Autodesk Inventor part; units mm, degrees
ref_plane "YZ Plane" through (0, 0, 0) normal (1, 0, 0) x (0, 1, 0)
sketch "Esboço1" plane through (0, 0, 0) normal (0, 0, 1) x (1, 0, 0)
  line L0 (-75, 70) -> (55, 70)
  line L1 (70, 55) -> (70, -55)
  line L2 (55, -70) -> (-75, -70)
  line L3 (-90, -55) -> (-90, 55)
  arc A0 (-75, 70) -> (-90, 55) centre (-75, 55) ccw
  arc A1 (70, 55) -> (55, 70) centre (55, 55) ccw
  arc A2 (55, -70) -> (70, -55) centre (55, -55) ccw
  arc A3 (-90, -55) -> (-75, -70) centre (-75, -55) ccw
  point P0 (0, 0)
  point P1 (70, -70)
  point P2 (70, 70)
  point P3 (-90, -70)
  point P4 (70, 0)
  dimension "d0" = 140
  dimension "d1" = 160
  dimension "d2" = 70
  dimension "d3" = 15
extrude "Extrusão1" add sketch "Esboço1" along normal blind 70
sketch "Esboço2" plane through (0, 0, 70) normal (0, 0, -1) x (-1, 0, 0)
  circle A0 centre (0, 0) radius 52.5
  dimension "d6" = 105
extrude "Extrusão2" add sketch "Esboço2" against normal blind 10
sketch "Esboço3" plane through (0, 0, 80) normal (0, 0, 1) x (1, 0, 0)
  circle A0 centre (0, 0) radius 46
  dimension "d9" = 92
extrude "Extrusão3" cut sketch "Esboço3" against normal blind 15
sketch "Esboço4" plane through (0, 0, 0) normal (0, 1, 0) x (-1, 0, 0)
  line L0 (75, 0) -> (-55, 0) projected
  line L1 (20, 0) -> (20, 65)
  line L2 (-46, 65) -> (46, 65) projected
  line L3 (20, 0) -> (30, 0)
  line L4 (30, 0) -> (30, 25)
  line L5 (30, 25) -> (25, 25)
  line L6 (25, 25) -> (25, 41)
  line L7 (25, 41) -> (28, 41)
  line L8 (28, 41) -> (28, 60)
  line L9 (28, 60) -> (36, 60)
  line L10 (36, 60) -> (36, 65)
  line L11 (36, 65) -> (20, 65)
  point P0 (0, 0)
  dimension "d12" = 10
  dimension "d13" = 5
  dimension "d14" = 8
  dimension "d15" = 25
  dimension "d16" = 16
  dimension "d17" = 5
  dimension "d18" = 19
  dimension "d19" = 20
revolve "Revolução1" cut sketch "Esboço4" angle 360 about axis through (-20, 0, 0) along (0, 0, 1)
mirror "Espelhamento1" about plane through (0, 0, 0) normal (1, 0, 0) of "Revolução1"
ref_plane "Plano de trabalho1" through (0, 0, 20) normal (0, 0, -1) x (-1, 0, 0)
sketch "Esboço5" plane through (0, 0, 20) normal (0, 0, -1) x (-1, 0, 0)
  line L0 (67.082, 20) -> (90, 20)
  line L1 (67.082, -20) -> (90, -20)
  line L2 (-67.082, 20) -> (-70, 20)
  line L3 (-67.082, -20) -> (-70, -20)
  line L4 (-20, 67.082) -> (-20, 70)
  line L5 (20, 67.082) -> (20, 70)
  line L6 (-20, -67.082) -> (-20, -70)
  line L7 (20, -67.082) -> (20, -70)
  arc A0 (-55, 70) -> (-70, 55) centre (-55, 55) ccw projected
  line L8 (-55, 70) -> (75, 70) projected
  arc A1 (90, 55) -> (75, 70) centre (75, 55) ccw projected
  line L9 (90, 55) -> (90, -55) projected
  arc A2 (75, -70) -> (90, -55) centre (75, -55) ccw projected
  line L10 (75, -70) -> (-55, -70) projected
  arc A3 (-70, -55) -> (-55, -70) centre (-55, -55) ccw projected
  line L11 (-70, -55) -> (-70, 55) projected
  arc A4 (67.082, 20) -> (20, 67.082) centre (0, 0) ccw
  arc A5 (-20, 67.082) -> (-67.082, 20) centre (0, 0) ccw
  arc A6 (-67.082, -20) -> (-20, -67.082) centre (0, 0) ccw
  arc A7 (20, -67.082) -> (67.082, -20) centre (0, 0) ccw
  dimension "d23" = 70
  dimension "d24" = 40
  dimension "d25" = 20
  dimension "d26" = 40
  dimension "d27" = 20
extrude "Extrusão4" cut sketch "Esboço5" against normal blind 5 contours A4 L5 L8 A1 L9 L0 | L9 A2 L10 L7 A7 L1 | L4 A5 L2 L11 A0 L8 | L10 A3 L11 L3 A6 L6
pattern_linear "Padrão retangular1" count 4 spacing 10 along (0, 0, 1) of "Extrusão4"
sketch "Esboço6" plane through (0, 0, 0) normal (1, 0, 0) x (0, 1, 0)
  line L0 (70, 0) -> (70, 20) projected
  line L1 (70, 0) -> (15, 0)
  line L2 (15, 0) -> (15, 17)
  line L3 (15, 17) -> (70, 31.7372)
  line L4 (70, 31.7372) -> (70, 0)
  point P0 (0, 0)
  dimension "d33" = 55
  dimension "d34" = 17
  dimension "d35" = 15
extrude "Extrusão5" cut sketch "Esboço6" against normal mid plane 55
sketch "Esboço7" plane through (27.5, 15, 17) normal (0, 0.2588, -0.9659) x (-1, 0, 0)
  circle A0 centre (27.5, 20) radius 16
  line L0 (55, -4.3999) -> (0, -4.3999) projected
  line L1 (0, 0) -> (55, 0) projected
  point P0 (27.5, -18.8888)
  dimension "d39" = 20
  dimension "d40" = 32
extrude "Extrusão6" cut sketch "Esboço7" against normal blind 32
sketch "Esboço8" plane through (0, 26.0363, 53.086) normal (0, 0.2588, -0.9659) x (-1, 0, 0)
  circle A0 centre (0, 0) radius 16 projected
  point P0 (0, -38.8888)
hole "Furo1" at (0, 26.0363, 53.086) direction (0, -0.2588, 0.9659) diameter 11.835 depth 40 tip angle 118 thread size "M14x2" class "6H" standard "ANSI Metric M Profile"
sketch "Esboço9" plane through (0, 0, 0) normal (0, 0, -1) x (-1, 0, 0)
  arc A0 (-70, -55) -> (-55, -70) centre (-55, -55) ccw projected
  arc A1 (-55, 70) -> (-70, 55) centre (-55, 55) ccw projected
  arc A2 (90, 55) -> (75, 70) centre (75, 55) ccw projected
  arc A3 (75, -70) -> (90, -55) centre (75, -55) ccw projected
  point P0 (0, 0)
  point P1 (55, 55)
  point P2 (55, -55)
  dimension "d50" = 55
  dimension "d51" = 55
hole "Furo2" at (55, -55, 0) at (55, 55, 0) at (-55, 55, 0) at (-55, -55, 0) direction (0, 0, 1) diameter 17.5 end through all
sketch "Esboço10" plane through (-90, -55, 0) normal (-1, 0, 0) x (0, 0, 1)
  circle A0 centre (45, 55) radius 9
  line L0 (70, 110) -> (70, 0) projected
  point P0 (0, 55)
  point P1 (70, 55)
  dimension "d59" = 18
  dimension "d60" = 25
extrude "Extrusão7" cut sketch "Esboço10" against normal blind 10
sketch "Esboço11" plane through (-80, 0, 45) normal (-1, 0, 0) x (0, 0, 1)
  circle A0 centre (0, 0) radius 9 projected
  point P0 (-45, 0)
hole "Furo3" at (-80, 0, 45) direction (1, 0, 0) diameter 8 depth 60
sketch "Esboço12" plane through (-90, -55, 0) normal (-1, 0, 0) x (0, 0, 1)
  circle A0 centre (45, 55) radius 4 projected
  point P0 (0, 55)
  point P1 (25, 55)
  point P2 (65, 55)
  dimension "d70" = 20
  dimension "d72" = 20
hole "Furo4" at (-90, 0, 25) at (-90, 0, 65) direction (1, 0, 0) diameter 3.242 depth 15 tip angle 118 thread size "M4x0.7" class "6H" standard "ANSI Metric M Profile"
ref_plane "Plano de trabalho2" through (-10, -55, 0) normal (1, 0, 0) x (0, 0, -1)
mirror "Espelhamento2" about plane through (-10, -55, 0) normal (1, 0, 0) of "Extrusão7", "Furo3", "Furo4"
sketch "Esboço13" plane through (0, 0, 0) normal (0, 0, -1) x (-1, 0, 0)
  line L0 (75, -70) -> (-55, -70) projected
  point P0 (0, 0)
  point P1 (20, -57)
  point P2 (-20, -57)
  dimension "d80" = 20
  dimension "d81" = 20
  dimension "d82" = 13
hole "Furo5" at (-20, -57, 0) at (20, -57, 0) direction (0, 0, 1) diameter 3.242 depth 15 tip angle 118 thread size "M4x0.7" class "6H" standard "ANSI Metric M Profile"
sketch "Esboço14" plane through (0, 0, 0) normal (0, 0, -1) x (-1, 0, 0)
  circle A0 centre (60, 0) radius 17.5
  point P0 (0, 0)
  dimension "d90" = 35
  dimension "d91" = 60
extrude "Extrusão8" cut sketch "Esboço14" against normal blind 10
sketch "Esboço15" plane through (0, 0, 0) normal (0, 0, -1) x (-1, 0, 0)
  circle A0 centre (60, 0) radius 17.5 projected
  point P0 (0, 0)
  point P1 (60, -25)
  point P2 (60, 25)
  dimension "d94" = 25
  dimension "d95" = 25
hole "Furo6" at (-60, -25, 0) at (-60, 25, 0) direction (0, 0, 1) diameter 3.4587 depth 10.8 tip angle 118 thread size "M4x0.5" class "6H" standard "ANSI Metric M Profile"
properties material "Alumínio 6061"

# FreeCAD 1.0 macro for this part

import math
import FreeCAD as App
import Part
import Sketcher
Q = App.Units.Quantity


def add_polygon(sketch, points):
    """Adds a closed chain of lines whose ends are joined by coincident constraints."""
    first, n = sketch.GeometryCount, len(points)
    for a, b in zip(points, points[1:] + points[:1]):
        sketch.addGeometry(Part.LineSegment(App.Vector(*a, 0), App.Vector(*b, 0)), False)
    for i in range(n):
        sketch.addConstraint(Sketcher.Constraint("Coincident", first + i, 2, first + (i + 1) % n, 1))

doc = App.newDocument("Part")
body = doc.addObject("PartDesign::Body", "Body")

# Sketch on XY plane
sketch1 = body.newObject("Sketcher::SketchObject", "Sketch")
sketch1.AttachmentSupport = (doc.getObject("XY_Plane"), [""])
sketch1.MapMode = "FlatFace"
sketch1.addGeometry([
    Part.LineSegment(App.Vector(55, 70, 0), App.Vector(-75, 70, 0)),  # 0
    Part.ArcOfCircle(Part.Circle(App.Vector(-75, 55, 0), App.Vector(0, 0, 1), 15), math.radians(90), math.radians(180)),  # 1
    Part.LineSegment(App.Vector(-90, 55, 0), App.Vector(-90, -55, 0)),  # 2
    Part.ArcOfCircle(Part.Circle(App.Vector(-75, -55, 0), App.Vector(0, 0, 1), 15), math.radians(180), math.radians(270)),  # 3
    Part.LineSegment(App.Vector(-75, -70, 0), App.Vector(55, -70, 0)),  # 4
    Part.ArcOfCircle(Part.Circle(App.Vector(55, -55, 0), App.Vector(0, 0, 1), 15), math.radians(-90), math.radians(0)),  # 5
    Part.LineSegment(App.Vector(70, -55, 0), App.Vector(70, 55, 0)),  # 6
    Part.ArcOfCircle(Part.Circle(App.Vector(55, 55, 0), App.Vector(0, 0, 1), 15), math.radians(0), math.radians(90)),  # 7
], False)
sketch1.addConstraint([
    Sketcher.Constraint("Tangent", 0, 2, 1, 1),
    Sketcher.Constraint("Tangent", 1, 2, 2, 1),
    Sketcher.Constraint("Tangent", 2, 2, 3, 1),
    Sketcher.Constraint("Tangent", 3, 2, 4, 1),
    Sketcher.Constraint("Tangent", 4, 2, 5, 1),
    Sketcher.Constraint("Tangent", 5, 2, 6, 1),
    Sketcher.Constraint("Tangent", 6, 2, 7, 1),
    Sketcher.Constraint("Tangent", 7, 2, 0, 1),
    Sketcher.Constraint("Horizontal", 0),
    Sketcher.Constraint("Vertical", 2),
    Sketcher.Constraint("Horizontal", 4),
    Sketcher.Constraint("Vertical", 6),
    Sketcher.Constraint("Equal", 1, 3),
    Sketcher.Constraint("Equal", 3, 5),
    Sketcher.Constraint("Equal", 5, 7),
    Sketcher.Constraint("Radius", 1, Q("15 mm")),
    Sketcher.Constraint("DistanceY", -1, 1, 0, 2, Q("70 mm")),
    Sketcher.Constraint("DistanceY", 3, 2, -1, 1, Q("70 mm")),
    Sketcher.Constraint("DistanceX", -1, 1, 5, 2, Q("70 mm")),
    Sketcher.Constraint("DistanceX", 0, 2, 0, 1, Q("130 mm")),
])
pad1 = body.newObject("PartDesign::Pad", "Pad")
pad1.Profile = sketch1
pad1.Length = 70

# Sketch on XY plane
sketch2 = body.newObject("Sketcher::SketchObject", "Sketch001")
sketch2.AttachmentSupport = (doc.getObject("XY_Plane"), [""])
sketch2.MapMode = "FlatFace"
sketch2.AttachmentOffset = App.Placement(App.Vector(0, 0, 70), App.Rotation())
sketch2.addGeometry(Part.Circle(App.Vector(0, 0, 0), App.Vector(0, 0, 1), 52), False)
sketch2.addConstraint([
    Sketcher.Constraint("Coincident", 0, 3, -1, 1),
    Sketcher.Constraint("Diameter", 0, Q("105 mm")),
])
pad2 = body.newObject("PartDesign::Pad", "Pad001")
pad2.Profile = sketch2
pad2.Length = 10

# Sketch on XY plane
sketch3 = body.newObject("Sketcher::SketchObject", "Sketch002")
sketch3.AttachmentSupport = (doc.getObject("XY_Plane"), [""])
sketch3.MapMode = "FlatFace"
sketch3.AttachmentOffset = App.Placement(App.Vector(0, 0, 80), App.Rotation())
sketch3.addGeometry(Part.Circle(App.Vector(0, 0, 0), App.Vector(0, 0, 1), 46), False)
sketch3.addConstraint([
    Sketcher.Constraint("Coincident", 0, 3, -1, 1),
    Sketcher.Constraint("Diameter", 0, Q("92 mm")),
])
pocket1 = body.newObject("PartDesign::Pocket", "Pocket")
pocket1.Profile = sketch3
pocket1.Length = 15

# Sketch on XZ plane
sketch4 = body.newObject("Sketcher::SketchObject", "Sketch003")
sketch4.AttachmentSupport = (doc.getObject("XZ_Plane"), [""])
sketch4.MapMode = "FlatFace"
add_polygon(sketch4, [(-20, 0), (-30, 0), (-30, 25), (-25, 25), (-25, 41), (-28, 41), (-28, 60), (-36, 60), (-36, 65), (-20, 65)])  # lines 0-9
sketch4.addGeometry(Part.LineSegment(App.Vector(-20, 0, 0), App.Vector(-20, 65, 0)), True)  # axis
sketch4.addConstraint([
    Sketcher.Constraint("Horizontal", 0),
    Sketcher.Constraint("Vertical", 1),
    Sketcher.Constraint("Horizontal", 2),
    Sketcher.Constraint("Vertical", 3),
    Sketcher.Constraint("Horizontal", 4),
    Sketcher.Constraint("Vertical", 5),
    Sketcher.Constraint("Horizontal", 6),
    Sketcher.Constraint("Vertical", 7),
    Sketcher.Constraint("Horizontal", 8),
    Sketcher.Constraint("Vertical", 9),
    Sketcher.Constraint("Vertical", 10),
    Sketcher.Constraint("Coincident", 10, 1, 9, 2),
    Sketcher.Constraint("PointOnObject", 0, 2, -1),
    Sketcher.Constraint("Horizontal", 7, 2, 10, 2),
    Sketcher.Constraint("Equal", 8, 3),
    Sketcher.Constraint("Equal", 2, 7),
    Sketcher.Constraint("DistanceX", 0, 2, 0, 1, Q("10 mm")),
    Sketcher.Constraint("DistanceX", 2, 1, 2, 2, Q("5 mm")),
    Sketcher.Constraint("DistanceX", 6, 2, 6, 1, Q("8 mm")),
    Sketcher.Constraint("DistanceX", 8, 1, 8, 2, Q("16 mm")),
    Sketcher.Constraint("DistanceY", 1, 1, 1, 2, Q("25 mm")),
    Sketcher.Constraint("DistanceY", 5, 1, 5, 2, Q("19 mm")),
    Sketcher.Constraint("DistanceX", 2, 2, -1, 1, Q("25 mm")),
])
groove = body.newObject("PartDesign::Groove", "Groove")
groove.Profile = sketch4
groove.ReferenceAxis = (sketch4, ["Axis0"])
groove.Angle = 360
doc.recompute()

mirrored = body.newObject("PartDesign::Mirrored", "Mirrored")
mirrored.Originals = [groove]
mirrored.MirrorPlane = (doc.getObject("YZ_Plane"), [""])
body.Tip = mirrored

# Sketch on XY plane
sketch5 = body.newObject("Sketcher::SketchObject", "Sketch004")
sketch5.AttachmentSupport = (doc.getObject("XY_Plane"), [""])
sketch5.MapMode = "FlatFace"
sketch5.AttachmentOffset = App.Placement(App.Vector(0, 0, 20), App.Rotation())
sketch5.addGeometry([
    Part.ArcOfCircle(Part.Circle(App.Vector(0, 0, 0), App.Vector(0, 0, 1), 70), math.radians(107), math.radians(163)),  # 0
    Part.LineSegment(App.Vector(-67.1, 20, 0), App.Vector(-90, 20, 0)),  # 1
    Part.LineSegment(App.Vector(-90, 20, 0), App.Vector(-90, 55, 0)),  # 2
    Part.ArcOfCircle(Part.Circle(App.Vector(-75, 55, 0), App.Vector(0, 0, 1), 15), math.radians(90), math.radians(180)),  # 3
    Part.LineSegment(App.Vector(-75, 70, 0), App.Vector(-20, 70, 0)),  # 4
    Part.LineSegment(App.Vector(-20, 70, 0), App.Vector(-20, 67.1, 0)),  # 5
    Part.LineSegment(App.Vector(-90, -55, 0), App.Vector(-90, -20, 0)),  # 6
    Part.LineSegment(App.Vector(-90, -20, 0), App.Vector(-67.1, -20, 0)),  # 7
    Part.ArcOfCircle(Part.Circle(App.Vector(0, 0, 0), App.Vector(0, 0, 1), 70), math.radians(-163), math.radians(-107)),  # 8
    Part.LineSegment(App.Vector(-20, -67.1, 0), App.Vector(-20, -70, 0)),  # 9
    Part.LineSegment(App.Vector(-20, -70, 0), App.Vector(-75, -70, 0)),  # 10
    Part.ArcOfCircle(Part.Circle(App.Vector(-75, -55, 0), App.Vector(0, 0, 1), 15), math.radians(180), math.radians(270)),  # 11
    Part.LineSegment(App.Vector(20, 67.1, 0), App.Vector(20, 70, 0)),  # 12
    Part.LineSegment(App.Vector(20, 70, 0), App.Vector(55, 70, 0)),  # 13
    Part.ArcOfCircle(Part.Circle(App.Vector(55, 55, 0), App.Vector(0, 0, 1), 15), math.radians(0), math.radians(90)),  # 14
    Part.LineSegment(App.Vector(70, 55, 0), App.Vector(70, 20, 0)),  # 15
    Part.LineSegment(App.Vector(70, 20, 0), App.Vector(67.1, 20, 0)),  # 16
    Part.ArcOfCircle(Part.Circle(App.Vector(0, 0, 0), App.Vector(0, 0, 1), 70), math.radians(17), math.radians(73)),  # 17
    Part.LineSegment(App.Vector(55, -70, 0), App.Vector(20, -70, 0)),  # 18
    Part.LineSegment(App.Vector(20, -70, 0), App.Vector(20, -67.1, 0)),  # 19
    Part.ArcOfCircle(Part.Circle(App.Vector(0, 0, 0), App.Vector(0, 0, 1), 70), math.radians(-73), math.radians(-17)),  # 20
    Part.LineSegment(App.Vector(67.1, -20, 0), App.Vector(70, -20, 0)),  # 21
    Part.LineSegment(App.Vector(70, -20, 0), App.Vector(70, -55, 0)),  # 22
    Part.ArcOfCircle(Part.Circle(App.Vector(55, -55, 0), App.Vector(0, 0, 1), 15), math.radians(-90), math.radians(0)),  # 23
], False)
sketch5.addConstraint([
    Sketcher.Constraint("Coincident", 0, 2, 1, 1),
    Sketcher.Constraint("Coincident", 1, 2, 2, 1),
    Sketcher.Constraint("Tangent", 2, 2, 3, 2),
    Sketcher.Constraint("Tangent", 3, 1, 4, 1),
    Sketcher.Constraint("Coincident", 4, 2, 5, 1),
    Sketcher.Constraint("Coincident", 5, 2, 0, 1),
    Sketcher.Constraint("Coincident", 6, 2, 7, 1),
    Sketcher.Constraint("Coincident", 7, 2, 8, 1),
    Sketcher.Constraint("Coincident", 8, 2, 9, 1),
    Sketcher.Constraint("Coincident", 9, 2, 10, 1),
    Sketcher.Constraint("Tangent", 10, 2, 11, 2),
    Sketcher.Constraint("Tangent", 11, 1, 6, 1),
    Sketcher.Constraint("Coincident", 12, 2, 13, 1),
    Sketcher.Constraint("Tangent", 13, 2, 14, 2),
    Sketcher.Constraint("Tangent", 14, 1, 15, 1),
    Sketcher.Constraint("Coincident", 15, 2, 16, 1),
    Sketcher.Constraint("Coincident", 16, 2, 17, 1),
    Sketcher.Constraint("Coincident", 17, 2, 12, 1),
    Sketcher.Constraint("Coincident", 18, 2, 19, 1),
    Sketcher.Constraint("Coincident", 19, 2, 20, 1),
    Sketcher.Constraint("Coincident", 20, 2, 21, 1),
    Sketcher.Constraint("Coincident", 21, 2, 22, 1),
    Sketcher.Constraint("Tangent", 22, 2, 23, 2),
    Sketcher.Constraint("Tangent", 23, 1, 18, 1),
    Sketcher.Constraint("Horizontal", 1),
    Sketcher.Constraint("Vertical", 2),
    Sketcher.Constraint("Horizontal", 4),
    Sketcher.Constraint("Vertical", 5),
    Sketcher.Constraint("Vertical", 6),
    Sketcher.Constraint("Horizontal", 7),
    Sketcher.Constraint("Vertical", 9),
    Sketcher.Constraint("Horizontal", 10),
    Sketcher.Constraint("Vertical", 12),
    Sketcher.Constraint("Horizontal", 13),
    Sketcher.Constraint("Vertical", 15),
    Sketcher.Constraint("Horizontal", 16),
    Sketcher.Constraint("Horizontal", 18),
    Sketcher.Constraint("Vertical", 19),
    Sketcher.Constraint("Horizontal", 21),
    Sketcher.Constraint("Vertical", 22),
    Sketcher.Constraint("Coincident", 0, 3, -1, 1),
    Sketcher.Constraint("Coincident", 8, 3, -1, 1),
    Sketcher.Constraint("Coincident", 17, 3, -1, 1),
    Sketcher.Constraint("Coincident", 20, 3, -1, 1),
    Sketcher.Constraint("Equal", 0, 8),
    Sketcher.Constraint("Equal", 3, 11),
    Sketcher.Constraint("Equal", 11, 14),
    Sketcher.Constraint("Equal", 8, 17),
    Sketcher.Constraint("Equal", 17, 20),
    Sketcher.Constraint("Equal", 14, 23),
    Sketcher.Constraint("Symmetric", 9, 2, 12, 2, -1, 1),
    Sketcher.Constraint("Symmetric", 4, 2, 18, 2, -1, 1),
    Sketcher.Constraint("Symmetric", 4, 2, 12, 2, -2),
    Sketcher.Constraint("Symmetric", 1, 2, 6, 2, -1),
    Sketcher.Constraint("Symmetric", 15, 2, 21, 2, -1),
    Sketcher.Constraint("Horizontal", 1, 2, 15, 2),
    Sketcher.Constraint("Equal", 18, 2),
    Sketcher.Constraint("Equal", 21, 5),
    Sketcher.Constraint("Radius", 0, Q("70 mm")),
    Sketcher.Constraint("DistanceY", -1, 1, 0, 2, Q("20 mm")),
    Sketcher.Constraint("DistanceY", -1, 1, 3, 1, Q("70 mm")),
    Sketcher.Constraint("Radius", 3, Q("15 mm")),
    Sketcher.Constraint("DistanceX", 2, 2, 4, 2, Q("70 mm")),
])
pocket2 = body.newObject("PartDesign::Pocket", "Pocket001")
pocket2.Profile = sketch5
pocket2.Length = 5
pocket2.Reversed = True
doc.recompute()

linearpattern = body.newObject("PartDesign::LinearPattern", "LinearPattern")
linearpattern.Originals = [pocket2]
linearpattern.Direction = (doc.getObject("Z_Axis"), [""])
linearpattern.Mode = "offset"
linearpattern.Offset = 10
linearpattern.Occurrences = 4
body.Tip = linearpattern

# Sketch on YZ plane
sketch6 = body.newObject("Sketcher::SketchObject", "Sketch005")
sketch6.AttachmentSupport = (doc.getObject("YZ_Plane"), [""])
sketch6.MapMode = "FlatFace"
add_polygon(sketch6, [(15, 0), (70, 0), (70, 32), (15, 17)])  # lines 0-3
sketch6.addConstraint([
    Sketcher.Constraint("Horizontal", 0),
    Sketcher.Constraint("Vertical", 1),
    Sketcher.Constraint("Vertical", 3),
    Sketcher.Constraint("PointOnObject", 0, 2, -1),
    Sketcher.Constraint("DistanceX", 0, 1, 0, 2, Q("55 mm")),
    Sketcher.Constraint("DistanceY", 3, 2, 3, 1, Q("17 mm")),
    Sketcher.Constraint("DistanceX", -1, 1, 2, 2, Q("15 mm")),
    Sketcher.Constraint("Angle", 2, Q("-165 deg")),
])
pocket3 = body.newObject("PartDesign::Pocket", "Pocket002")
pocket3.Profile = sketch6
pocket3.Length = 55
pocket3.Midplane = True

# Sketch on an angled plane
sketch7 = body.newObject("Sketcher::SketchObject", "Sketch006")
sketch7.Placement = App.Placement(App.Vector(27.5, 15, 17), App.Rotation(App.Vector(-1, 0, 0), App.Vector(0, 0.965925826, 0.258819045), App.Vector(0, 0.258819045, -0.965925826), "ZXY"))
sketch7.addGeometry(Part.Circle(App.Vector(28, 20, 0), App.Vector(0, 0, 1), 16), False)
sketch7.addConstraint([
    Sketcher.Constraint("Diameter", 0, Q("32 mm")),
    Sketcher.Constraint("DistanceY", -1, 1, 0, 3, Q("20 mm")),
    Sketcher.Constraint("DistanceX", -1, 1, 0, 3, Q("27.5 mm")),
])
pocket4 = body.newObject("PartDesign::Pocket", "Pocket003")
pocket4.Profile = sketch7
pocket4.Length = 32

# Sketch on an angled plane
sketch8 = body.newObject("Sketcher::SketchObject", "Sketch007")
sketch8.Placement = App.Placement(App.Vector(0, -11.527399, 43.020837), App.Rotation(App.Vector(0, 0.965925826, 0.258819045), App.Vector(0.999999999, 0, 0), App.Vector(0, 0.258819045, -0.965925826), "ZXY"))
sketch8.addGeometry(Part.Circle(App.Vector(39, 0, 0), App.Vector(0, 0, 1), 6), False)
sketch8.addConstraint([
    Sketcher.Constraint("PointOnObject", 0, 3, -1),
    Sketcher.Constraint("Diameter", 0, Q("11.835 mm")),
    Sketcher.Constraint("DistanceX", -1, 1, 0, 3, Q("38.8888 mm")),
])
doc.recompute()
hole = body.newObject("PartDesign::Hole", "Hole")
hole.Profile = sketch8
hole.ThreadType = "None"
hole.Diameter = 11.835
hole.DepthType = "Dimension"
hole.Depth = 40
hole.DrillPoint = "Angled"
hole.DrillPointAngle = 118

# Sketch on XY plane
sketch9 = body.newObject("Sketcher::SketchObject", "Sketch008")
sketch9.AttachmentSupport = (doc.getObject("XY_Plane"), [""])
sketch9.MapMode = "FlatFace"
sketch9.addGeometry([
    Part.Circle(App.Vector(55, -55, 0), App.Vector(0, 0, 1), 9),
    Part.Circle(App.Vector(55, 55, 0), App.Vector(0, 0, 1), 9),
    Part.Circle(App.Vector(-55, 55, 0), App.Vector(0, 0, 1), 9),
    Part.Circle(App.Vector(-55, -55, 0), App.Vector(0, 0, 1), 9),
], False)
sketch9.addConstraint([
    Sketcher.Constraint("Equal", 0, 1),
    Sketcher.Constraint("Equal", 1, 2),
    Sketcher.Constraint("Equal", 2, 3),
    Sketcher.Constraint("Symmetric", 0, 3, 2, 3, -1, 1),
    Sketcher.Constraint("Symmetric", 1, 3, 3, 3, -1, 1),
    Sketcher.Constraint("Symmetric", 1, 3, 2, 3, -2),
    Sketcher.Constraint("Diameter", 0, Q("17.5 mm")),
    Sketcher.Constraint("DistanceX", -1, 1, 0, 3, Q("55 mm")),
    Sketcher.Constraint("DistanceY", 0, 3, -1, 1, Q("55 mm")),
])
doc.recompute()
hole2 = body.newObject("PartDesign::Hole", "Hole001")
hole2.Profile = sketch9
hole2.ThreadType = "None"
hole2.Diameter = 17.5
hole2.DepthType = "ThroughAll"
hole2.Reversed = True

# Sketch on YZ plane
sketch10 = body.newObject("Sketcher::SketchObject", "Sketch009")
sketch10.AttachmentSupport = (doc.getObject("YZ_Plane"), [""])
sketch10.MapMode = "FlatFace"
sketch10.AttachmentOffset = App.Placement(App.Vector(0, 0, -90), App.Rotation())
sketch10.addGeometry(Part.Circle(App.Vector(0, 45, 0), App.Vector(0, 0, 1), 9), False)
sketch10.addConstraint([
    Sketcher.Constraint("PointOnObject", 0, 3, -2),
    Sketcher.Constraint("Diameter", 0, Q("18 mm")),
    Sketcher.Constraint("DistanceY", -1, 1, 0, 3, Q("45 mm")),
])
pocket5 = body.newObject("PartDesign::Pocket", "Pocket004")
pocket5.Profile = sketch10
pocket5.Length = 10
pocket5.Reversed = True

# Sketch on YZ plane
sketch11 = body.newObject("Sketcher::SketchObject", "Sketch010")
sketch11.AttachmentSupport = (doc.getObject("YZ_Plane"), [""])
sketch11.MapMode = "FlatFace"
sketch11.AttachmentOffset = App.Placement(App.Vector(0, 0, -80), App.Rotation())
sketch11.addGeometry(Part.Circle(App.Vector(0, 45, 0), App.Vector(0, 0, 1), 4), False)
sketch11.addConstraint([
    Sketcher.Constraint("PointOnObject", 0, 3, -2),
    Sketcher.Constraint("Diameter", 0, Q("8 mm")),
    Sketcher.Constraint("DistanceY", -1, 1, 0, 3, Q("45 mm")),
])
doc.recompute()
hole3 = body.newObject("PartDesign::Hole", "Hole002")
hole3.Profile = sketch11
hole3.ThreadType = "None"
hole3.Diameter = 8
hole3.DepthType = "Dimension"
hole3.Depth = 60
hole3.DrillPoint = "Flat"
hole3.Reversed = True

# Sketch on YZ plane
sketch12 = body.newObject("Sketcher::SketchObject", "Sketch011")
sketch12.AttachmentSupport = (doc.getObject("YZ_Plane"), [""])
sketch12.MapMode = "FlatFace"
sketch12.AttachmentOffset = App.Placement(App.Vector(0, 0, -90), App.Rotation())
sketch12.addGeometry([
    Part.Circle(App.Vector(0, 25, 0), App.Vector(0, 0, 1), 1.6),
    Part.Circle(App.Vector(0, 65, 0), App.Vector(0, 0, 1), 1.6),
], False)
sketch12.addConstraint([
    Sketcher.Constraint("Equal", 0, 1),
    Sketcher.Constraint("PointOnObject", 0, 3, -2),
    Sketcher.Constraint("PointOnObject", 1, 3, -2),
    Sketcher.Constraint("Diameter", 0, Q("3.242 mm")),
    Sketcher.Constraint("DistanceY", -1, 1, 0, 3, Q("25 mm")),
    Sketcher.Constraint("DistanceY", -1, 1, 1, 3, Q("65 mm")),
])
doc.recompute()
hole4 = body.newObject("PartDesign::Hole", "Hole003")
hole4.Profile = sketch12
hole4.ThreadType = "None"
hole4.Diameter = 3.242
hole4.DepthType = "Dimension"
hole4.Depth = 15
hole4.DrillPoint = "Angled"
hole4.DrillPointAngle = 118
hole4.Reversed = True
doc.recompute()

datumplane = body.newObject("PartDesign::Plane", "DatumPlane")
datumplane.AttachmentSupport = (doc.getObject("YZ_Plane"), [""])
datumplane.MapMode = "FlatFace"
datumplane.AttachmentOffset = App.Placement(App.Vector(0, 0, -10), App.Rotation())
mirrored2 = body.newObject("PartDesign::Mirrored", "Mirrored001")
mirrored2.Originals = [pocket5, hole3, hole4]
mirrored2.MirrorPlane = (datumplane, [""])
body.Tip = mirrored2

# Sketch on XY plane
sketch13 = body.newObject("Sketcher::SketchObject", "Sketch012")
sketch13.AttachmentSupport = (doc.getObject("XY_Plane"), [""])
sketch13.MapMode = "FlatFace"
sketch13.addGeometry([
    Part.Circle(App.Vector(-20, -57, 0), App.Vector(0, 0, 1), 1.6),
    Part.Circle(App.Vector(20, -57, 0), App.Vector(0, 0, 1), 1.6),
], False)
sketch13.addConstraint([
    Sketcher.Constraint("Equal", 0, 1),
    Sketcher.Constraint("Symmetric", 0, 3, 1, 3, -2),
    Sketcher.Constraint("Diameter", 0, Q("3.242 mm")),
    Sketcher.Constraint("DistanceX", 0, 3, -1, 1, Q("20 mm")),
    Sketcher.Constraint("DistanceY", 0, 3, -1, 1, Q("57 mm")),
])
doc.recompute()
hole5 = body.newObject("PartDesign::Hole", "Hole004")
hole5.Profile = sketch13
hole5.ThreadType = "None"
hole5.Diameter = 3.242
hole5.DepthType = "Dimension"
hole5.Depth = 15
hole5.DrillPoint = "Angled"
hole5.DrillPointAngle = 118
hole5.Reversed = True

# Sketch on XY plane
sketch14 = body.newObject("Sketcher::SketchObject", "Sketch013")
sketch14.AttachmentSupport = (doc.getObject("XY_Plane"), [""])
sketch14.MapMode = "FlatFace"
sketch14.addGeometry(Part.Circle(App.Vector(-60, 0, 0), App.Vector(0, 0, 1), 18), False)
sketch14.addConstraint([
    Sketcher.Constraint("PointOnObject", 0, 3, -1),
    Sketcher.Constraint("Diameter", 0, Q("35 mm")),
    Sketcher.Constraint("DistanceX", 0, 3, -1, 1, Q("60 mm")),
])
pocket6 = body.newObject("PartDesign::Pocket", "Pocket005")
pocket6.Profile = sketch14
pocket6.Length = 10
pocket6.Reversed = True

# Sketch on XY plane
sketch15 = body.newObject("Sketcher::SketchObject", "Sketch014")
sketch15.AttachmentSupport = (doc.getObject("XY_Plane"), [""])
sketch15.MapMode = "FlatFace"
sketch15.addGeometry([
    Part.Circle(App.Vector(-60, -25, 0), App.Vector(0, 0, 1), 1.7),
    Part.Circle(App.Vector(-60, 25, 0), App.Vector(0, 0, 1), 1.7),
], False)
sketch15.addConstraint([
    Sketcher.Constraint("Equal", 0, 1),
    Sketcher.Constraint("Symmetric", 0, 3, 1, 3, -1),
    Sketcher.Constraint("DistanceX", 0, 3, -1, 1, Q("60 mm")),
    Sketcher.Constraint("DistanceY", 0, 3, -1, 1, Q("25 mm")),
    Sketcher.Constraint("Diameter", 0, Q("3.4587 mm")),
])
doc.recompute()
hole6 = body.newObject("PartDesign::Hole", "Hole005")
hole6.Profile = sketch15
hole6.ThreadType = "None"
hole6.Diameter = 3.4587
hole6.DepthType = "Dimension"
hole6.Depth = 10.8
hole6.DrillPoint = "Angled"
hole6.DrillPointAngle = 118
hole6.Reversed = True

doc.recompute()
